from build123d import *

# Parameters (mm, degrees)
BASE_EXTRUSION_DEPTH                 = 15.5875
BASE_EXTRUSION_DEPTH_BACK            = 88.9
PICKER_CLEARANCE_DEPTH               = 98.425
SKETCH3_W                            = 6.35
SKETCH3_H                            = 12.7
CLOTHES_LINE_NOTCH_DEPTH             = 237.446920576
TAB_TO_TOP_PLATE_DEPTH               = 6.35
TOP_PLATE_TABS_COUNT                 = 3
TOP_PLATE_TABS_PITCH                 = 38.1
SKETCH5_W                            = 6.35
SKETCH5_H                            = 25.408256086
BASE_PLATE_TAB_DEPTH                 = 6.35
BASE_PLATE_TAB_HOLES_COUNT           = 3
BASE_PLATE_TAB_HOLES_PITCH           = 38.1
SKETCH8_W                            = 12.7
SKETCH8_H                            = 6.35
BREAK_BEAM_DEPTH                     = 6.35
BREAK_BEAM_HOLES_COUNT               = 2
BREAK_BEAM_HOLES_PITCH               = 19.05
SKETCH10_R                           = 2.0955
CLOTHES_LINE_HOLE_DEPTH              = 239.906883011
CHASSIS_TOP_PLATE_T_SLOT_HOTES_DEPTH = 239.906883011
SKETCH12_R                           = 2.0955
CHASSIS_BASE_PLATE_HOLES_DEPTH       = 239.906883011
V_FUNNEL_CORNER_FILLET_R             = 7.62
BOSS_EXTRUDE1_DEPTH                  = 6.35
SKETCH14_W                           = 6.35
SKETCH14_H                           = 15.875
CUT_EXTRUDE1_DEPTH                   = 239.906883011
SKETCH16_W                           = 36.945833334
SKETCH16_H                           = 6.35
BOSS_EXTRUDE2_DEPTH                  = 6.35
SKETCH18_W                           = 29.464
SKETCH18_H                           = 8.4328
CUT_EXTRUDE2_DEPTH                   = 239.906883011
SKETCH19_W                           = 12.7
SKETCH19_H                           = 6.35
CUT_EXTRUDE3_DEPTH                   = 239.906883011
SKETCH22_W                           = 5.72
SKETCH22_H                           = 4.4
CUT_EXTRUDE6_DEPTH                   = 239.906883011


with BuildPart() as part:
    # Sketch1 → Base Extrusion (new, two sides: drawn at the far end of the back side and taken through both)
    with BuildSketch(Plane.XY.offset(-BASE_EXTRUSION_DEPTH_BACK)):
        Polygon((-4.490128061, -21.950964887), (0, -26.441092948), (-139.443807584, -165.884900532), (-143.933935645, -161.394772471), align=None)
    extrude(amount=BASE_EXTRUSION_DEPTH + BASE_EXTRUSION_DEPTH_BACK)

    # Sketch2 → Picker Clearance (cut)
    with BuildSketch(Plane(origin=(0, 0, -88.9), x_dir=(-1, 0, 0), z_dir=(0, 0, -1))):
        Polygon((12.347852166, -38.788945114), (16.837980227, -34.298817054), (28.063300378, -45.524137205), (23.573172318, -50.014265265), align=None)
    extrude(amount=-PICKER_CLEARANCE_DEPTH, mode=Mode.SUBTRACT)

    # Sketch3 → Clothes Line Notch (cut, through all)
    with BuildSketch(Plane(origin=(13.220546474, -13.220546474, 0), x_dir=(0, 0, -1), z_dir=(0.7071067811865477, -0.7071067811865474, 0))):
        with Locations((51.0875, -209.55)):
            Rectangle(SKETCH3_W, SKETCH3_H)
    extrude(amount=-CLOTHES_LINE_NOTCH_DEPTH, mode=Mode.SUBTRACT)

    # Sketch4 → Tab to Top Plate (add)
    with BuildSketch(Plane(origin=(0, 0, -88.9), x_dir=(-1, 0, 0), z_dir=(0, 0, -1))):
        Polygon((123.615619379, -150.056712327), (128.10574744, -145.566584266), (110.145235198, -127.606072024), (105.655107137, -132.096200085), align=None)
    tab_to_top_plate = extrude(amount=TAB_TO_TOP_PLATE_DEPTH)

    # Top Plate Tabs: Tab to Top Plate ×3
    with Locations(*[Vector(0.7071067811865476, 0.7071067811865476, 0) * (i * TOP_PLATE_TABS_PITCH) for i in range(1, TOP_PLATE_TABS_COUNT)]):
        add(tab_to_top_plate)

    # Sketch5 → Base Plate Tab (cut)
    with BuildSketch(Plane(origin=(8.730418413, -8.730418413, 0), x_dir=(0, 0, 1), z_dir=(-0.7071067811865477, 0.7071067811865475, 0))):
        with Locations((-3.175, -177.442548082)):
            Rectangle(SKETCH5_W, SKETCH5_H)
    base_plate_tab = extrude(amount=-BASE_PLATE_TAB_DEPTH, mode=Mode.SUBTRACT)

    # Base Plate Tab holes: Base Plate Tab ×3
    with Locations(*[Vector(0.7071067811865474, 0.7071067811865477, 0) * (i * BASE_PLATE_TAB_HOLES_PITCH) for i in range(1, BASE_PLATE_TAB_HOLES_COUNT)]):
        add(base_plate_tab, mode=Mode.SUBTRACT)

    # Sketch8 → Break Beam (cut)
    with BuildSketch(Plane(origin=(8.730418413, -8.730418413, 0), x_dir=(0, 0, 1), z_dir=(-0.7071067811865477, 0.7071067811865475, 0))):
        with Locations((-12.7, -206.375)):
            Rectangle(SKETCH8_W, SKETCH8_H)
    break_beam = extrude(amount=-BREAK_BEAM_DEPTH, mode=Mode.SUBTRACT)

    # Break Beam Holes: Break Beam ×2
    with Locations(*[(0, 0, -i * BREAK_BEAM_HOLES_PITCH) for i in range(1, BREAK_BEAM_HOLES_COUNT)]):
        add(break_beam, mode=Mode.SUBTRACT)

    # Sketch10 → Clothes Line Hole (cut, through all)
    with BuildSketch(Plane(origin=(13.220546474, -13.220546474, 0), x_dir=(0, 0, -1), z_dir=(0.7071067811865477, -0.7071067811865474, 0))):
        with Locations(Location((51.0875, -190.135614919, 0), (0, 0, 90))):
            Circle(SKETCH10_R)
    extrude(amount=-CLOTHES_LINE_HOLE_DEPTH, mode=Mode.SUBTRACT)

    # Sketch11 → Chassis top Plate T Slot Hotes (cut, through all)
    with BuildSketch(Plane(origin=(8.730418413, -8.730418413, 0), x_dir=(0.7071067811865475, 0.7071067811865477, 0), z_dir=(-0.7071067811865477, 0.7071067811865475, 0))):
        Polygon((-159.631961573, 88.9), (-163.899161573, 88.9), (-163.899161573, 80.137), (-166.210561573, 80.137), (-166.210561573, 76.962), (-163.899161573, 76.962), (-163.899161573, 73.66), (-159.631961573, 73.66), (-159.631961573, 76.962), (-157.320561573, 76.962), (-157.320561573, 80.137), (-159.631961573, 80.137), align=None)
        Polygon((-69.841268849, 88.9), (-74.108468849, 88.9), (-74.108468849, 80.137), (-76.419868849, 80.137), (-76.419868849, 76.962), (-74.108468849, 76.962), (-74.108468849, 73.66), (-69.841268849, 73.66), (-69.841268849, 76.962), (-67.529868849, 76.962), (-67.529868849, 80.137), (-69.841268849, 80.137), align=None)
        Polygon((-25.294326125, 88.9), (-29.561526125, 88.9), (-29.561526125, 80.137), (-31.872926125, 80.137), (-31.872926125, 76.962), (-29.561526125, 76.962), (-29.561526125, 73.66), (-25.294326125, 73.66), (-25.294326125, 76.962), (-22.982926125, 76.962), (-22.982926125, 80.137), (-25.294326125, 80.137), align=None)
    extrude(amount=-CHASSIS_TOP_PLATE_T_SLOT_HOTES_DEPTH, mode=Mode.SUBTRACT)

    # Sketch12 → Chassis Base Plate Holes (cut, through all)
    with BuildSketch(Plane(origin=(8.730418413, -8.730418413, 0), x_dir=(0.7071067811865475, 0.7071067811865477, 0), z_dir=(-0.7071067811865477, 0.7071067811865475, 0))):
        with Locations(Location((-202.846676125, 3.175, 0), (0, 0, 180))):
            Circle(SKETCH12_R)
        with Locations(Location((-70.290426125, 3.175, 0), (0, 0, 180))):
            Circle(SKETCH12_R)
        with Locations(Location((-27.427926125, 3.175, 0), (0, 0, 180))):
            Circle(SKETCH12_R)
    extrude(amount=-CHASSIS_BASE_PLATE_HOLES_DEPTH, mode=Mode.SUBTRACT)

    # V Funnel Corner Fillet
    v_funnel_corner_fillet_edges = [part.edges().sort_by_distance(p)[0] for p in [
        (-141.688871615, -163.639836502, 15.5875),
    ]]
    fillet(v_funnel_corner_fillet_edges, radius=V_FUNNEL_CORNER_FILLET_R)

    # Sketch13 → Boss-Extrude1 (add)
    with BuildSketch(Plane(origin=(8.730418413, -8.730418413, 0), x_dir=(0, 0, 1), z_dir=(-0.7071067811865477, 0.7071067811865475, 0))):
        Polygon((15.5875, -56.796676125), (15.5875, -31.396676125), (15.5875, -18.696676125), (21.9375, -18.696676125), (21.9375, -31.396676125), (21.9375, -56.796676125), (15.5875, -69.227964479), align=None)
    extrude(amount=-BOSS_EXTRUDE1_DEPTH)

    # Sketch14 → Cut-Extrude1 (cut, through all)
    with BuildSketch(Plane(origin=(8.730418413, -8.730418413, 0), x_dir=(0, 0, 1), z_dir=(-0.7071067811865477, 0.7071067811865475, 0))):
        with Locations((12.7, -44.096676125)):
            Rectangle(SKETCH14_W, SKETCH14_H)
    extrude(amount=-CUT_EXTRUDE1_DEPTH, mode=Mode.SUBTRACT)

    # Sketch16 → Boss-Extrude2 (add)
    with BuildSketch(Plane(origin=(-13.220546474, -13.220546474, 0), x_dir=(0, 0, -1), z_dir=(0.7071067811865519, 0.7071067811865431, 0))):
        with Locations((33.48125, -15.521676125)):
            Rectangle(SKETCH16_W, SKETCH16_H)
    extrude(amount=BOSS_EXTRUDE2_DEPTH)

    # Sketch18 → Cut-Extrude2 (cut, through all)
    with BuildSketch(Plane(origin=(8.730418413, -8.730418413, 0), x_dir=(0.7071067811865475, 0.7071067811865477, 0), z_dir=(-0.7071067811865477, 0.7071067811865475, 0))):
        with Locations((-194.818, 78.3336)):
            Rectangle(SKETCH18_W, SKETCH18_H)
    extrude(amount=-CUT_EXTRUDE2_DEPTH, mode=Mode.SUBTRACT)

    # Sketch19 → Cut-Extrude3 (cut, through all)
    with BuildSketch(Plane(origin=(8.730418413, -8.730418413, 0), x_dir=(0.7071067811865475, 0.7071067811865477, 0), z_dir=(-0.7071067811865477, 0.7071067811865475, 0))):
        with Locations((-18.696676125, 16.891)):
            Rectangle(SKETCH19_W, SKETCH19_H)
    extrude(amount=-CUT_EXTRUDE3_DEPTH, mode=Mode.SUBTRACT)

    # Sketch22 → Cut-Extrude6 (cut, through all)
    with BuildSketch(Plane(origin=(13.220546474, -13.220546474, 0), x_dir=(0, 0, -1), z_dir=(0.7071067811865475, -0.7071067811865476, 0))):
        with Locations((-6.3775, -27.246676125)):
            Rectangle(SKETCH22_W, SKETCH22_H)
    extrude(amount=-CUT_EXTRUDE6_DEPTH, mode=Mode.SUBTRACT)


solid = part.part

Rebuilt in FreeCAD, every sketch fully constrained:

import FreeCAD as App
import Part
import Sketcher

V = App.Vector
Q = App.Units.Quantity


def edges_at(feature, points):
    """Names of the edges that pass closest to the given points."""
    edges = feature.Shape.Edges
    near = lambda p: min(range(len(edges)), key=lambda i: edges[i].distToShape(Part.Vertex(*p))[0])
    return sorted({f"Edge{near(p) + 1}" for p in points})

doc = App.newDocument("Part")
body = doc.addObject("PartDesign::Body", "Body")

sketch1 = doc.addObject("Sketcher::SketchObject", "Sketch")
body.addObject(sketch1)
sketch1.AttachmentSupport = (doc.XY_Plane, [""])
sketch1.MapMode = "FlatFace"
sketch1.addGeometry(Part.LineSegment(V(0, -26, 0), V(-4, -22, 0)), False)
sketch1.addGeometry(Part.LineSegment(V(-4, -22, 0), V(-144, -161, 0)), False)
sketch1.addGeometry(Part.LineSegment(V(-144, -161, 0), V(-139, -166, 0)), False)
sketch1.addGeometry(Part.LineSegment(V(-139, -166, 0), V(0, -26, 0)), False)
sketch1.addConstraint(Sketcher.Constraint("Coincident", 0, 2, 1, 1))
sketch1.addConstraint(Sketcher.Constraint("Coincident", 1, 2, 2, 1))
sketch1.addConstraint(Sketcher.Constraint("Coincident", 2, 2, 3, 1))
sketch1.addConstraint(Sketcher.Constraint("Coincident", 3, 2, 0, 1))
sketch1.addConstraint(Sketcher.Constraint("PointOnObject", 3, 2, -2))
sketch1.addConstraint(Sketcher.Constraint("Perpendicular", 0, 1))
sketch1.addConstraint(Sketcher.Constraint("Perpendicular", 1, 2))
sketch1.addConstraint(Sketcher.Constraint("Perpendicular", 2, 3))
sketch1.addConstraint(Sketcher.Constraint("Angle", 0, Q("135 deg")))
sketch1.addConstraint(Sketcher.Constraint("Distance", 0, Q("0.25 in")))
sketch1.addConstraint(Sketcher.Constraint("DistanceY", 2, 2, -1, 1, Q("165.884901 mm")))
sketch1.addConstraint(Sketcher.Constraint("DistanceX", 2, 2, 0, 2, Q("134.95368 mm")))
pad1 = doc.addObject("PartDesign::Pad", "Pad")
body.addObject(pad1)
pad1.Profile = sketch1
pad1.Type = "TwoLengths"
pad1.Length = 15.5875
pad1.Length2 = Q("3.5 in")

sketch2 = doc.addObject("Sketcher::SketchObject", "Sketch001")
body.addObject(sketch2)
sketch2.AttachmentSupport = (doc.XY_Plane, [""])
sketch2.MapMode = "FlatFace"
sketch2.AttachmentOffset = App.Placement(V(0, 0, -3.5 * 25.4), App.Rotation())
sketch2.addGeometry(Part.LineSegment(V(-17, -34, 0), V(-12, -39, 0)), False)
sketch2.addGeometry(Part.LineSegment(V(-12, -39, 0), V(-24, -50, 0)), False)
sketch2.addGeometry(Part.LineSegment(V(-24, -50, 0), V(-28, -46, 0)), False)
sketch2.addGeometry(Part.LineSegment(V(-28, -46, 0), V(-17, -34, 0)), False)
sketch2.addConstraint(Sketcher.Constraint("Coincident", 0, 2, 1, 1))
sketch2.addConstraint(Sketcher.Constraint("Coincident", 1, 2, 2, 1))
sketch2.addConstraint(Sketcher.Constraint("Coincident", 2, 2, 3, 1))
sketch2.addConstraint(Sketcher.Constraint("Coincident", 3, 2, 0, 1))
sketch2.addConstraint(Sketcher.Constraint("Perpendicular", 0, 1))
sketch2.addConstraint(Sketcher.Constraint("Perpendicular", 1, 2))
sketch2.addConstraint(Sketcher.Constraint("Perpendicular", 2, 3))
sketch2.addConstraint(Sketcher.Constraint("Angle", 0, Q("-45 deg")))
sketch2.addConstraint(Sketcher.Constraint("Distance", 0, Q("0.25 in")))
sketch2.addConstraint(Sketcher.Constraint("Distance", 1, Q("0.625 in")))
sketch2.addConstraint(Sketcher.Constraint("DistanceX", 2, 2, -1, 1, Q("28.0633 mm")))
sketch2.addConstraint(Sketcher.Constraint("DistanceY", 0, 2, -1, 1, Q("38.788945 mm")))
pocket1 = doc.addObject("PartDesign::Pocket", "Pocket")
body.addObject(pocket1)
pocket1.Profile = sketch2
pocket1.Length = Q("3.875 in")
pocket1.Reversed = True

sketch3 = doc.addObject("Sketcher::SketchObject", "Sketch002")
body.addObject(sketch3)
sketch3.Placement = App.Placement(V(13.220546, -13.220546, 0), App.Rotation(V(0, 0, -1), V(0.707106781, 0.707106781, 0), V(0.707106781, -0.707106781, 0), "ZXY"))
sketch3.addGeometry(Part.LineSegment(V(48, -203, 0), V(48, -216, 0)), False)
sketch3.addGeometry(Part.LineSegment(V(48, -216, 0), V(54, -216, 0)), False)
sketch3.addGeometry(Part.LineSegment(V(54, -216, 0), V(54, -203, 0)), False)
sketch3.addGeometry(Part.LineSegment(V(54, -203, 0), V(48, -203, 0)), False)
sketch3.addConstraint(Sketcher.Constraint("Coincident", 0, 2, 1, 1))
sketch3.addConstraint(Sketcher.Constraint("Coincident", 1, 2, 2, 1))
sketch3.addConstraint(Sketcher.Constraint("Coincident", 2, 2, 3, 1))
sketch3.addConstraint(Sketcher.Constraint("Coincident", 3, 2, 0, 1))
sketch3.addConstraint(Sketcher.Constraint("Vertical", 0))
sketch3.addConstraint(Sketcher.Constraint("Horizontal", 1))
sketch3.addConstraint(Sketcher.Constraint("Vertical", 2))
sketch3.addConstraint(Sketcher.Constraint("Horizontal", 3))
sketch3.addConstraint(Sketcher.Constraint("DistanceY", 0, 2, 0, 1, Q("0.5 in")))
sketch3.addConstraint(Sketcher.Constraint("DistanceY", 2, 2, -1, 1, Q("8 in")))
sketch3.addConstraint(Sketcher.Constraint("DistanceX", 1, 1, 1, 2, Q("0.25 in")))
sketch3.addConstraint(Sketcher.Constraint("DistanceX", -1, 1, 0, 2, Q("47.9125 mm")))
pocket2 = doc.addObject("PartDesign::Pocket", "Pocket001")
body.addObject(pocket2)
pocket2.Profile = sketch3
pocket2.Type = "ThroughAll"

sketch4 = doc.addObject("Sketcher::SketchObject", "Sketch003")
body.addObject(sketch4)
sketch4.AttachmentSupport = (doc.XY_Plane, [""])
sketch4.MapMode = "FlatFace"
sketch4.AttachmentOffset = App.Placement(V(0, 0, -3.5 * 25.4), App.Rotation())
sketch4.addGeometry(Part.LineSegment(V(-124, -150, 0), V(-128, -146, 0)), False)
sketch4.addGeometry(Part.LineSegment(V(-128, -146, 0), V(-110, -128, 0)), False)
sketch4.addGeometry(Part.LineSegment(V(-110, -128, 0), V(-106, -132, 0)), False)
sketch4.addGeometry(Part.LineSegment(V(-106, -132, 0), V(-124, -150, 0)), False)
sketch4.addConstraint(Sketcher.Constraint("Coincident", 0, 2, 1, 1))
sketch4.addConstraint(Sketcher.Constraint("Coincident", 1, 2, 2, 1))
sketch4.addConstraint(Sketcher.Constraint("Coincident", 2, 2, 3, 1))
sketch4.addConstraint(Sketcher.Constraint("Coincident", 3, 2, 0, 1))
sketch4.addConstraint(Sketcher.Constraint("Perpendicular", 0, 1))
sketch4.addConstraint(Sketcher.Constraint("Perpendicular", 1, 2))
sketch4.addConstraint(Sketcher.Constraint("Perpendicular", 2, 3))
sketch4.addConstraint(Sketcher.Constraint("Distance", 1, Q("1 in")))
sketch4.addConstraint(Sketcher.Constraint("Angle", 0, Q("135 deg")))
sketch4.addConstraint(Sketcher.Constraint("Distance", 0, Q("0.25 in")))
sketch4.addConstraint(Sketcher.Constraint("DistanceY", 2, 2, -1, 1, Q("132.0962 mm")))
sketch4.addConstraint(Sketcher.Constraint("DistanceX", 3, 2, -1, 1, Q("123.615619 mm")))
pad2 = doc.addObject("PartDesign::Pad", "Pad001")
body.addObject(pad2)
pad2.Profile = sketch4
pad2.Length = Q("0.25 in")
pad2.Reversed = True
doc.recompute()

datumline = doc.addObject("PartDesign::Line", "DatumLine")
body.addObject(datumline)
datumline.Placement = App.Placement(V(0, 0, 0), App.Rotation(V(0, 0, 1), V(0.707106781, 0.707106781, 0)))
linearpattern = doc.addObject("PartDesign::LinearPattern", "LinearPattern")
body.addObject(linearpattern)
linearpattern.Originals = [pad2]
linearpattern.Direction = (datumline, [""])
linearpattern.Mode = "offset"
linearpattern.Offset = Q("1.5 in")
linearpattern.Occurrences = 3
body.Tip = linearpattern

sketch5 = doc.addObject("Sketcher::SketchObject", "Sketch004")
body.addObject(sketch5)
sketch5.Placement = App.Placement(V(8.730418, -8.730418, 0), App.Rotation(V(0, 0, 1), V(0.707106781, 0.707106781, 0), V(-0.707106781, 0.707106781, 0), "ZXY"))
sketch5.addGeometry(Part.LineSegment(V(-6, -165, 0), V(-6, -190, 0)), False)
sketch5.addGeometry(Part.LineSegment(V(-6, -190, 0), V(0, -190, 0)), False)
sketch5.addGeometry(Part.LineSegment(V(0, -190, 0), V(0, -165, 0)), False)
sketch5.addGeometry(Part.LineSegment(V(0, -165, 0), V(-6, -165, 0)), False)
sketch5.addConstraint(Sketcher.Constraint("Coincident", 0, 2, 1, 1))
sketch5.addConstraint(Sketcher.Constraint("Coincident", 1, 2, 2, 1))
sketch5.addConstraint(Sketcher.Constraint("Coincident", 2, 2, 3, 1))
sketch5.addConstraint(Sketcher.Constraint("Coincident", 3, 2, 0, 1))
sketch5.addConstraint(Sketcher.Constraint("Vertical", 0))
sketch5.addConstraint(Sketcher.Constraint("Horizontal", 1))
sketch5.addConstraint(Sketcher.Constraint("Vertical", 2))
sketch5.addConstraint(Sketcher.Constraint("Horizontal", 3))
sketch5.addConstraint(Sketcher.Constraint("PointOnObject", 1, 2, -2))
sketch5.addConstraint(Sketcher.Constraint("DistanceX", 1, 1, 1, 2, Q("0.25 in")))
sketch5.addConstraint(Sketcher.Constraint("DistanceY", 0, 2, 0, 1, Q("25.408256 mm")))
sketch5.addConstraint(Sketcher.Constraint("DistanceY", 2, 2, -1, 1, Q("164.73842 mm")))
pocket3 = doc.addObject("PartDesign::Pocket", "Pocket002")
body.addObject(pocket3)
pocket3.Profile = sketch5
pocket3.Length = Q("0.25 in")
doc.recompute()

datumline2 = doc.addObject("PartDesign::Line", "DatumLine001")
body.addObject(datumline2)
datumline2.Placement = App.Placement(V(0, 0, 0), App.Rotation(V(0, 0, 1), V(0.707106781, 0.707106781, 0)))
linearpattern2 = doc.addObject("PartDesign::LinearPattern", "LinearPattern001")
body.addObject(linearpattern2)
linearpattern2.Originals = [pocket3]
linearpattern2.Direction = (datumline2, [""])
linearpattern2.Mode = "offset"
linearpattern2.Offset = Q("1.5 in")
linearpattern2.Occurrences = 3
body.Tip = linearpattern2

sketch6 = doc.addObject("Sketcher::SketchObject", "Sketch005")
body.addObject(sketch6)
sketch6.Placement = App.Placement(V(8.730418, -8.730418, 0), App.Rotation(V(0, 0, 1), V(0.707106781, 0.707106781, 0), V(-0.707106781, 0.707106781, 0), "ZXY"))
sketch6.addGeometry(Part.LineSegment(V(-19, -203, 0), V(-19, -210, 0)), False)
sketch6.addGeometry(Part.LineSegment(V(-19, -210, 0), V(-6, -210, 0)), False)
sketch6.addGeometry(Part.LineSegment(V(-6, -210, 0), V(-6, -203, 0)), False)
sketch6.addGeometry(Part.LineSegment(V(-6, -203, 0), V(-19, -203, 0)), False)
sketch6.addConstraint(Sketcher.Constraint("Coincident", 0, 2, 1, 1))
sketch6.addConstraint(Sketcher.Constraint("Coincident", 1, 2, 2, 1))
sketch6.addConstraint(Sketcher.Constraint("Coincident", 2, 2, 3, 1))
sketch6.addConstraint(Sketcher.Constraint("Coincident", 3, 2, 0, 1))
sketch6.addConstraint(Sketcher.Constraint("Vertical", 0))
sketch6.addConstraint(Sketcher.Constraint("Horizontal", 1))
sketch6.addConstraint(Sketcher.Constraint("Vertical", 2))
sketch6.addConstraint(Sketcher.Constraint("Horizontal", 3))
sketch6.addConstraint(Sketcher.Constraint("DistanceX", 1, 1, 1, 2, Q("0.5 in")))
sketch6.addConstraint(Sketcher.Constraint("DistanceY", 2, 2, -1, 1, Q("8 in")))
sketch6.addConstraint(Sketcher.Constraint("DistanceY", 0, 2, 0, 1, Q("0.25 in")))
sketch6.addConstraint(Sketcher.Constraint("DistanceX", 0, 2, -1, 1, Q("0.75 in")))
pocket4 = doc.addObject("PartDesign::Pocket", "Pocket003")
body.addObject(pocket4)
pocket4.Profile = sketch6
pocket4.Length = Q("0.25 in")
doc.recompute()

linearpattern3 = doc.addObject("PartDesign::LinearPattern", "LinearPattern002")
body.addObject(linearpattern3)
linearpattern3.Originals = [pocket4]
linearpattern3.Direction = (doc.Z_Axis, [""])
linearpattern3.Mode = "offset"
linearpattern3.Offset = Q("0.75 in")
linearpattern3.Occurrences = 2
linearpattern3.Reversed = True
body.Tip = linearpattern3

sketch7 = doc.addObject("Sketcher::SketchObject", "Sketch006")
body.addObject(sketch7)
sketch7.Placement = App.Placement(V(13.220546, -13.220546, 0), App.Rotation(V(0, 0, -1), V(0.707106781, 0.707106781, 0), V(0.707106781, -0.707106781, 0), "ZXY"))
sketch7.addGeometry(Part.Circle(V(51.1, -190.1, 0), V(0, 0, 1), 2.1), False)
sketch7.addConstraint(Sketcher.Constraint("Diameter", 0, Q("0.165 in")))
sketch7.addConstraint(Sketcher.Constraint("DistanceX", -1, 1, 0, 3, Q("51.0875 mm")))
sketch7.addConstraint(Sketcher.Constraint("DistanceY", 0, 3, -1, 1, Q("190.135615 mm")))
pocket5 = doc.addObject("PartDesign::Pocket", "Pocket004")
body.addObject(pocket5)
pocket5.Profile = sketch7
pocket5.Type = "ThroughAll"

sketch8 = doc.addObject("Sketcher::SketchObject", "Sketch007")
body.addObject(sketch8)
sketch8.Placement = App.Placement(V(8.730418, -8.730418, 0), App.Rotation(V(0.707106781, 0.707106781, 0), V(0, 0, -0.999999999), V(-0.707106781, 0.707106781, 0), "ZXY"))
sketch8.addGeometry(Part.LineSegment(V(-159.6, 88.9, 0), V(-163.9, 88.9, 0)), False)
sketch8.addGeometry(Part.LineSegment(V(-163.9, 88.9, 0), V(-163.9, 80.1, 0)), False)
sketch8.addGeometry(Part.LineSegment(V(-163.9, 80.1, 0), V(-166.2, 80.1, 0)), False)
sketch8.addGeometry(Part.LineSegment(V(-166.2, 80.1, 0), V(-166.2, 77, 0)), False)
sketch8.addGeometry(Part.LineSegment(V(-166.2, 77, 0), V(-163.9, 77, 0)), False)
sketch8.addGeometry(Part.LineSegment(V(-163.9, 77, 0), V(-163.9, 73.7, 0)), False)
sketch8.addGeometry(Part.LineSegment(V(-163.9, 73.7, 0), V(-159.6, 73.7, 0)), False)
sketch8.addGeometry(Part.LineSegment(V(-159.6, 73.7, 0), V(-159.6, 77, 0)), False)
sketch8.addGeometry(Part.LineSegment(V(-159.6, 77, 0), V(-157.3, 77, 0)), False)
sketch8.addGeometry(Part.LineSegment(V(-157.3, 77, 0), V(-157.3, 80.1, 0)), False)
sketch8.addGeometry(Part.LineSegment(V(-157.3, 80.1, 0), V(-159.6, 80.1, 0)), False)
sketch8.addGeometry(Part.LineSegment(V(-159.6, 80.1, 0), V(-159.6, 88.9, 0)), False)
sketch8.addGeometry(Part.LineSegment(V(-69.8, 88.9, 0), V(-74.1, 88.9, 0)), False)
sketch8.addGeometry(Part.LineSegment(V(-74.1, 88.9, 0), V(-74.1, 80.1, 0)), False)
sketch8.addGeometry(Part.LineSegment(V(-74.1, 80.1, 0), V(-76.4, 80.1, 0)), False)
sketch8.addGeometry(Part.LineSegment(V(-76.4, 80.1, 0), V(-76.4, 77, 0)), False)
sketch8.addGeometry(Part.LineSegment(V(-76.4, 77, 0), V(-74.1, 77, 0)), False)
sketch8.addGeometry(Part.LineSegment(V(-74.1, 77, 0), V(-74.1, 73.7, 0)), False)
sketch8.addGeometry(Part.LineSegment(V(-74.1, 73.7, 0), V(-69.8, 73.7, 0)), False)
sketch8.addGeometry(Part.LineSegment(V(-69.8, 73.7, 0), V(-69.8, 77, 0)), False)
sketch8.addGeometry(Part.LineSegment(V(-69.8, 77, 0), V(-67.5, 77, 0)), False)
sketch8.addGeometry(Part.LineSegment(V(-67.5, 77, 0), V(-67.5, 80.1, 0)), False)
sketch8.addGeometry(Part.LineSegment(V(-67.5, 80.1, 0), V(-69.8, 80.1, 0)), False)
sketch8.addGeometry(Part.LineSegment(V(-69.8, 80.1, 0), V(-69.8, 88.9, 0)), False)
sketch8.addGeometry(Part.LineSegment(V(-25.3, 88.9, 0), V(-29.6, 88.9, 0)), False)
sketch8.addGeometry(Part.LineSegment(V(-29.6, 88.9, 0), V(-29.6, 80.1, 0)), False)
sketch8.addGeometry(Part.LineSegment(V(-29.6, 80.1, 0), V(-31.9, 80.1, 0)), False)
sketch8.addGeometry(Part.LineSegment(V(-31.9, 80.1, 0), V(-31.9, 77, 0)), False)
sketch8.addGeometry(Part.LineSegment(V(-31.9, 77, 0), V(-29.6, 77, 0)), False)
sketch8.addGeometry(Part.LineSegment(V(-29.6, 77, 0), V(-29.6, 73.7, 0)), False)
sketch8.addGeometry(Part.LineSegment(V(-29.6, 73.7, 0), V(-25.3, 73.7, 0)), False)
sketch8.addGeometry(Part.LineSegment(V(-25.3, 73.7, 0), V(-25.3, 77, 0)), False)
sketch8.addGeometry(Part.LineSegment(V(-25.3, 77, 0), V(-23, 77, 0)), False)
sketch8.addGeometry(Part.LineSegment(V(-23, 77, 0), V(-23, 80.1, 0)), False)
sketch8.addGeometry(Part.LineSegment(V(-23, 80.1, 0), V(-25.3, 80.1, 0)), False)
sketch8.addGeometry(Part.LineSegment(V(-25.3, 80.1, 0), V(-25.3, 88.9, 0)), False)
sketch8.addConstraint(Sketcher.Constraint("Coincident", 0, 2, 1, 1))
sketch8.addConstraint(Sketcher.Constraint("Coincident", 1, 2, 2, 1))
sketch8.addConstraint(Sketcher.Constraint("Coincident", 2, 2, 3, 1))
sketch8.addConstraint(Sketcher.Constraint("Coincident", 3, 2, 4, 1))
sketch8.addConstraint(Sketcher.Constraint("Coincident", 4, 2, 5, 1))
sketch8.addConstraint(Sketcher.Constraint("Coincident", 5, 2, 6, 1))
sketch8.addConstraint(Sketcher.Constraint("Coincident", 6, 2, 7, 1))
sketch8.addConstraint(Sketcher.Constraint("Coincident", 7, 2, 8, 1))
sketch8.addConstraint(Sketcher.Constraint("Coincident", 8, 2, 9, 1))
sketch8.addConstraint(Sketcher.Constraint("Coincident", 9, 2, 10, 1))
sketch8.addConstraint(Sketcher.Constraint("Coincident", 10, 2, 11, 1))
sketch8.addConstraint(Sketcher.Constraint("Coincident", 11, 2, 0, 1))
sketch8.addConstraint(Sketcher.Constraint("Coincident", 12, 2, 13, 1))
sketch8.addConstraint(Sketcher.Constraint("Coincident", 13, 2, 14, 1))
sketch8.addConstraint(Sketcher.Constraint("Coincident", 14, 2, 15, 1))
sketch8.addConstraint(Sketcher.Constraint("Coincident", 15, 2, 16, 1))
sketch8.addConstraint(Sketcher.Constraint("Coincident", 16, 2, 17, 1))
sketch8.addConstraint(Sketcher.Constraint("Coincident", 17, 2, 18, 1))
sketch8.addConstraint(Sketcher.Constraint("Coincident", 18, 2, 19, 1))
sketch8.addConstraint(Sketcher.Constraint("Coincident", 19, 2, 20, 1))
sketch8.addConstraint(Sketcher.Constraint("Coincident", 20, 2, 21, 1))
sketch8.addConstraint(Sketcher.Constraint("Coincident", 21, 2, 22, 1))
sketch8.addConstraint(Sketcher.Constraint("Coincident", 22, 2, 23, 1))
sketch8.addConstraint(Sketcher.Constraint("Coincident", 23, 2, 12, 1))
sketch8.addConstraint(Sketcher.Constraint("Coincident", 24, 2, 25, 1))
sketch8.addConstraint(Sketcher.Constraint("Coincident", 25, 2, 26, 1))
sketch8.addConstraint(Sketcher.Constraint("Coincident", 26, 2, 27, 1))
sketch8.addConstraint(Sketcher.Constraint("Coincident", 27, 2, 28, 1))
sketch8.addConstraint(Sketcher.Constraint("Coincident", 28, 2, 29, 1))
sketch8.addConstraint(Sketcher.Constraint("Coincident", 29, 2, 30, 1))
sketch8.addConstraint(Sketcher.Constraint("Coincident", 30, 2, 31, 1))
sketch8.addConstraint(Sketcher.Constraint("Coincident", 31, 2, 32, 1))
sketch8.addConstraint(Sketcher.Constraint("Coincident", 32, 2, 33, 1))
sketch8.addConstraint(Sketcher.Constraint("Coincident", 33, 2, 34, 1))
sketch8.addConstraint(Sketcher.Constraint("Coincident", 34, 2, 35, 1))
sketch8.addConstraint(Sketcher.Constraint("Coincident", 35, 2, 24, 1))
sketch8.addConstraint(Sketcher.Constraint("Horizontal", 0))
sketch8.addConstraint(Sketcher.Constraint("Vertical", 1))
sketch8.addConstraint(Sketcher.Constraint("Horizontal", 2))
sketch8.addConstraint(Sketcher.Constraint("Vertical", 3))
sketch8.addConstraint(Sketcher.Constraint("Horizontal", 4))
sketch8.addConstraint(Sketcher.Constraint("Vertical", 5))
sketch8.addConstraint(Sketcher.Constraint("Horizontal", 6))
sketch8.addConstraint(Sketcher.Constraint("Vertical", 7))
sketch8.addConstraint(Sketcher.Constraint("Horizontal", 8))
sketch8.addConstraint(Sketcher.Constraint("Vertical", 9))
sketch8.addConstraint(Sketcher.Constraint("Horizontal", 10))
sketch8.addConstraint(Sketcher.Constraint("Vertical", 11))
sketch8.addConstraint(Sketcher.Constraint("Horizontal", 12))
sketch8.addConstraint(Sketcher.Constraint("Vertical", 13))
sketch8.addConstraint(Sketcher.Constraint("Horizontal", 14))
sketch8.addConstraint(Sketcher.Constraint("Vertical", 15))
sketch8.addConstraint(Sketcher.Constraint("Horizontal", 16))
sketch8.addConstraint(Sketcher.Constraint("Vertical", 17))
sketch8.addConstraint(Sketcher.Constraint("Horizontal", 18))
sketch8.addConstraint(Sketcher.Constraint("Vertical", 19))
sketch8.addConstraint(Sketcher.Constraint("Horizontal", 20))
sketch8.addConstraint(Sketcher.Constraint("Vertical", 21))
sketch8.addConstraint(Sketcher.Constraint("Horizontal", 22))
sketch8.addConstraint(Sketcher.Constraint("Vertical", 23))
sketch8.addConstraint(Sketcher.Constraint("Horizontal", 24))
sketch8.addConstraint(Sketcher.Constraint("Vertical", 25))
sketch8.addConstraint(Sketcher.Constraint("Horizontal", 26))
sketch8.addConstraint(Sketcher.Constraint("Vertical", 27))
sketch8.addConstraint(Sketcher.Constraint("Horizontal", 28))
sketch8.addConstraint(Sketcher.Constraint("Vertical", 29))
sketch8.addConstraint(Sketcher.Constraint("Horizontal", 30))
sketch8.addConstraint(Sketcher.Constraint("Vertical", 31))
sketch8.addConstraint(Sketcher.Constraint("Horizontal", 32))
sketch8.addConstraint(Sketcher.Constraint("Vertical", 33))
sketch8.addConstraint(Sketcher.Constraint("Horizontal", 34))
sketch8.addConstraint(Sketcher.Constraint("Vertical", 35))
sketch8.addConstraint(Sketcher.Constraint("Horizontal", 4, 2, 7, 2))
sketch8.addConstraint(Sketcher.Constraint("Horizontal", 2, 2, 9, 2))
sketch8.addConstraint(Sketcher.Constraint("Horizontal", 11, 2, 12, 2))
sketch8.addConstraint(Sketcher.Constraint("Horizontal", 10, 2, 13, 2))
sketch8.addConstraint(Sketcher.Constraint("Horizontal", 8, 2, 15, 2))
sketch8.addConstraint(Sketcher.Constraint("Horizontal", 6, 2, 17, 2))
sketch8.addConstraint(Sketcher.Constraint("Horizontal", 16, 2, 19, 2))
sketch8.addConstraint(Sketcher.Constraint("Horizontal", 14, 2, 21, 2))
sketch8.addConstraint(Sketcher.Constraint("Horizontal", 23, 2, 24, 2))
sketch8.addConstraint(Sketcher.Constraint("Horizontal", 22, 2, 25, 2))
sketch8.addConstraint(Sketcher.Constraint("Horizontal", 20, 2, 27, 2))
sketch8.addConstraint(Sketcher.Constraint("Horizontal", 18, 2, 29, 2))
sketch8.addConstraint(Sketcher.Constraint("Horizontal", 28, 2, 31, 2))
sketch8.addConstraint(Sketcher.Constraint("Horizontal", 26, 2, 33, 2))
sketch8.addConstraint(Sketcher.Constraint("Vertical", 1, 2, 4, 2))
sketch8.addConstraint(Sketcher.Constraint("Vertical", 7, 2, 10, 2))
sketch8.addConstraint(Sketcher.Constraint("Vertical", 13, 2, 16, 2))
sketch8.addConstraint(Sketcher.Constraint("Vertical", 19, 2, 22, 2))
sketch8.addConstraint(Sketcher.Constraint("Vertical", 25, 2, 28, 2))
sketch8.addConstraint(Sketcher.Constraint("Vertical", 31, 2, 34, 2))
sketch8.addConstraint(Sketcher.Constraint("Equal", 4, 8))
sketch8.addConstraint(Sketcher.Constraint("Equal", 6, 12))
sketch8.addConstraint(Sketcher.Constraint("Equal", 10, 14))
sketch8.addConstraint(Sketcher.Constraint("Equal", 16, 20))
sketch8.addConstraint(Sketcher.Constraint("Equal", 18, 24))
sketch8.addConstraint(Sketcher.Constraint("Equal", 22, 26))
sketch8.addConstraint(Sketcher.Constraint("Equal", 28, 32))
sketch8.addConstraint(Sketcher.Constraint("DistanceY", 5, 2, 5, 1, Q("0.13 in")))
sketch8.addConstraint(Sketcher.Constraint("DistanceY", -1, 1, 0, 2, Q("3.5 in")))
sketch8.addConstraint(Sketcher.Constraint("DistanceY", -1, 1, 5, 2, Q("2.9 in")))
sketch8.addConstraint(Sketcher.Constraint("DistanceX", 0, 2, 0, 1, Q("0.168 in")))
sketch8.addConstraint(Sketcher.Constraint("DistanceX", 2, 2, 2, 1, Q("0.091 in")))
sketch8.addConstraint(Sketcher.Constraint("DistanceY", 1, 2, 1, 1, Q("0.345 in")))
sketch8.addConstraint(Sketcher.Constraint("DistanceX", 0, 2, -1, 1, Q("163.899161 mm")))
sketch8.addConstraint(Sketcher.Constraint("DistanceX", 12, 2, -1, 1, Q("74.108469 mm")))
sketch8.addConstraint(Sketcher.Constraint("DistanceX", 24, 2, -1, 1, Q("29.561526 mm")))
pocket6 = doc.addObject("PartDesign::Pocket", "Pocket005")
body.addObject(pocket6)
pocket6.Profile = sketch8
pocket6.Type = "ThroughAll"

sketch9 = doc.addObject("Sketcher::SketchObject", "Sketch008")
body.addObject(sketch9)
sketch9.Placement = App.Placement(V(8.730418, -8.730418, 0), App.Rotation(V(0.707106781, 0.707106781, 0), V(0, 0, -0.999999999), V(-0.707106781, 0.707106781, 0), "ZXY"))
sketch9.addGeometry(Part.Circle(V(-202.8, 3.2, 0), V(0, 0, 1), 2.1), False)
sketch9.addGeometry(Part.Circle(V(-70.3, 3.2, 0), V(0, 0, 1), 2.1), False)
sketch9.addGeometry(Part.Circle(V(-27.4, 3.2, 0), V(0, 0, 1), 2.1), False)
sketch9.addConstraint(Sketcher.Constraint("Equal", 0, 1))
sketch9.addConstraint(Sketcher.Constraint("Equal", 1, 2))
sketch9.addConstraint(Sketcher.Constraint("Horizontal", 0, 3, 1, 3))
sketch9.addConstraint(Sketcher.Constraint("Horizontal", 1, 3, 2, 3))
sketch9.addConstraint(Sketcher.Constraint("Diameter", 0, Q("0.165 in")))
sketch9.addConstraint(Sketcher.Constraint("DistanceY", -1, 1, 0, 3, Q("0.125 in")))
sketch9.addConstraint(Sketcher.Constraint("DistanceX", 0, 3, 1, 3, Q("5.21875 in")))
sketch9.addConstraint(Sketcher.Constraint("DistanceX", 1, 3, 2, 3, Q("1.6875 in")))
sketch9.addConstraint(Sketcher.Constraint("DistanceX", 0, 3, -1, 1, Q("202.846676 mm")))
pocket7 = doc.addObject("PartDesign::Pocket", "Pocket006")
body.addObject(pocket7)
pocket7.Profile = sketch9
pocket7.Type = "ThroughAll"
doc.recompute()

fillet = doc.addObject("PartDesign::Fillet", "Fillet")
body.addObject(fillet)
fillet.Base = (pocket7, edges_at(pocket7, [(-141.689, -163.64, 15.588)]))
fillet.Radius = Q("0.3 in")

sketch10 = doc.addObject("Sketcher::SketchObject", "Sketch009")
body.addObject(sketch10)
sketch10.Placement = App.Placement(V(8.730418, -8.730418, 0), App.Rotation(V(0, 0, 1), V(0.707106781, 0.707106781, 0), V(-0.707106781, 0.707106781, 0), "ZXY"))
sketch10.addGeometry(Part.LineSegment(V(16, -19, 0), V(16, -69, 0)), False)
sketch10.addGeometry(Part.LineSegment(V(16, -69, 0), V(22, -57, 0)), False)
sketch10.addGeometry(Part.LineSegment(V(22, -57, 0), V(22, -19, 0)), False)
sketch10.addGeometry(Part.LineSegment(V(22, -19, 0), V(16, -19, 0)), False)
sketch10.addConstraint(Sketcher.Constraint("Coincident", 0, 2, 1, 1))
sketch10.addConstraint(Sketcher.Constraint("Coincident", 1, 2, 2, 1))
sketch10.addConstraint(Sketcher.Constraint("Coincident", 2, 2, 3, 1))
sketch10.addConstraint(Sketcher.Constraint("Coincident", 3, 2, 0, 1))
sketch10.addConstraint(Sketcher.Constraint("Vertical", 0))
sketch10.addConstraint(Sketcher.Constraint("Vertical", 2))
sketch10.addConstraint(Sketcher.Constraint("Horizontal", 3))
sketch10.addConstraint(Sketcher.Constraint("DistanceY", 2, 1, 2, 2, Q("1.5 in")))
sketch10.addConstraint(Sketcher.Constraint("DistanceX", 3, 2, 3, 1, Q("0.25 in")))
sketch10.addConstraint(Sketcher.Constraint("DistanceY", 0, 2, 0, 1, Q("50.531288 mm")))
sketch10.addConstraint(Sketcher.Constraint("DistanceX", -1, 1, 0, 2, Q("15.5875 mm")))
sketch10.addConstraint(Sketcher.Constraint("DistanceY", 0, 2, -1, 1, Q("69.227964 mm")))
pad3 = doc.addObject("PartDesign::Pad", "Pad002")
body.addObject(pad3)
pad3.Profile = sketch10
pad3.Length = Q("0.25 in")
pad3.Reversed = True

sketch11 = doc.addObject("Sketcher::SketchObject", "Sketch010")
body.addObject(sketch11)
sketch11.Placement = App.Placement(V(8.730418, -8.730418, 0), App.Rotation(V(0, 0, 1), V(0.707106781, 0.707106781, 0), V(-0.707106781, 0.707106781, 0), "ZXY"))
sketch11.addGeometry(Part.LineSegment(V(10, -36, 0), V(10, -52, 0)), False)
sketch11.addGeometry(Part.LineSegment(V(10, -52, 0), V(16, -52, 0)), False)
sketch11.addGeometry(Part.LineSegment(V(16, -52, 0), V(16, -36, 0)), False)
sketch11.addGeometry(Part.LineSegment(V(16, -36, 0), V(10, -36, 0)), False)
sketch11.addConstraint(Sketcher.Constraint("Coincident", 0, 2, 1, 1))
sketch11.addConstraint(Sketcher.Constraint("Coincident", 1, 2, 2, 1))
sketch11.addConstraint(Sketcher.Constraint("Coincident", 2, 2, 3, 1))
sketch11.addConstraint(Sketcher.Constraint("Coincident", 3, 2, 0, 1))
sketch11.addConstraint(Sketcher.Constraint("Vertical", 0))
sketch11.addConstraint(Sketcher.Constraint("Horizontal", 1))
sketch11.addConstraint(Sketcher.Constraint("Vertical", 2))
sketch11.addConstraint(Sketcher.Constraint("Horizontal", 3))
sketch11.addConstraint(Sketcher.Constraint("DistanceX", 1, 1, 1, 2, Q("0.25 in")))
sketch11.addConstraint(Sketcher.Constraint("DistanceY", 0, 2, 0, 1, Q("0.625 in")))
sketch11.addConstraint(Sketcher.Constraint("DistanceX", -1, 1, 0, 2, Q("0.375 in")))
sketch11.addConstraint(Sketcher.Constraint("DistanceY", 0, 2, -1, 1, Q("52.034176 mm")))
pocket8 = doc.addObject("PartDesign::Pocket", "Pocket007")
body.addObject(pocket8)
pocket8.Profile = sketch11
pocket8.Type = "ThroughAll"

sketch12 = doc.addObject("Sketcher::SketchObject", "Sketch011")
body.addObject(sketch12)
sketch12.Placement = App.Placement(V(-13.220546, -13.220546, 0), App.Rotation(V(0, 0, -1), V(-0.707106781, 0.707106781, 0), V(0.707106781, 0.707106781, 0), "ZXY"))
sketch12.addGeometry(Part.LineSegment(V(15, -12, 0), V(15, -19, 0)), False)
sketch12.addGeometry(Part.LineSegment(V(15, -19, 0), V(52, -19, 0)), False)
sketch12.addGeometry(Part.LineSegment(V(52, -19, 0), V(52, -12, 0)), False)
sketch12.addGeometry(Part.LineSegment(V(52, -12, 0), V(15, -12, 0)), False)
sketch12.addConstraint(Sketcher.Constraint("Coincident", 0, 2, 1, 1))
sketch12.addConstraint(Sketcher.Constraint("Coincident", 1, 2, 2, 1))
sketch12.addConstraint(Sketcher.Constraint("Coincident", 2, 2, 3, 1))
sketch12.addConstraint(Sketcher.Constraint("Coincident", 3, 2, 0, 1))
sketch12.addConstraint(Sketcher.Constraint("Vertical", 0))
sketch12.addConstraint(Sketcher.Constraint("Horizontal", 1))
sketch12.addConstraint(Sketcher.Constraint("Vertical", 2))
sketch12.addConstraint(Sketcher.Constraint("Horizontal", 3))
sketch12.addConstraint(Sketcher.Constraint("DistanceY", 0, 2, 0, 1, Q("0.25 in")))
sketch12.addConstraint(Sketcher.Constraint("DistanceX", 1, 1, 1, 2, Q("36.945833 mm")))
sketch12.addConstraint(Sketcher.Constraint("DistanceX", -1, 1, 0, 2, Q("15.008333 mm")))
sketch12.addConstraint(Sketcher.Constraint("DistanceY", 0, 2, -1, 1, Q("18.696676 mm")))
pad4 = doc.addObject("PartDesign::Pad", "Pad003")
body.addObject(pad4)
pad4.Profile = sketch12
pad4.Length = Q("0.25 in")

sketch13 = doc.addObject("Sketcher::SketchObject", "Sketch012")
body.addObject(sketch13)
sketch13.Placement = App.Placement(V(8.730418, -8.730418, 0), App.Rotation(V(0.707106781, 0.707106781, 0), V(0, 0, -0.999999999), V(-0.707106781, 0.707106781, 0), "ZXY"))
sketch13.addGeometry(Part.LineSegment(V(-210, 83, 0), V(-210, 74, 0)), False)
sketch13.addGeometry(Part.LineSegment(V(-210, 74, 0), V(-180, 74, 0)), False)
sketch13.addGeometry(Part.LineSegment(V(-180, 74, 0), V(-180, 83, 0)), False)
sketch13.addGeometry(Part.LineSegment(V(-180, 83, 0), V(-210, 83, 0)), False)
sketch13.addConstraint(Sketcher.Constraint("Coincident", 0, 2, 1, 1))
sketch13.addConstraint(Sketcher.Constraint("Coincident", 1, 2, 2, 1))
sketch13.addConstraint(Sketcher.Constraint("Coincident", 2, 2, 3, 1))
sketch13.addConstraint(Sketcher.Constraint("Coincident", 3, 2, 0, 1))
sketch13.addConstraint(Sketcher.Constraint("Vertical", 0))
sketch13.addConstraint(Sketcher.Constraint("Horizontal", 1))
sketch13.addConstraint(Sketcher.Constraint("Vertical", 2))
sketch13.addConstraint(Sketcher.Constraint("Horizontal", 3))
sketch13.addConstraint(Sketcher.Constraint("DistanceX", 1, 1, 1, 2, Q("1.16 in")))
sketch13.addConstraint(Sketcher.Constraint("DistanceY", 0, 2, 0, 1, Q("0.332 in")))
sketch13.addConstraint(Sketcher.Constraint("DistanceX", 0, 2, -1, 1, Q("8.25 in")))
sketch13.addConstraint(Sketcher.Constraint("DistanceY", -1, 1, 2, 2, Q("3.25 in")))
pocket9 = doc.addObject("PartDesign::Pocket", "Pocket008")
body.addObject(pocket9)
pocket9.Profile = sketch13
pocket9.Type = "ThroughAll"

sketch14 = doc.addObject("Sketcher::SketchObject", "Sketch013")
body.addObject(sketch14)
sketch14.Placement = App.Placement(V(8.730418, -8.730418, 0), App.Rotation(V(0.707106781, 0.707106781, 0), V(0, 0, -0.999999999), V(-0.707106781, 0.707106781, 0), "ZXY"))
sketch14.addGeometry(Part.LineSegment(V(-25, 20, 0), V(-25, 14, 0)), False)
sketch14.addGeometry(Part.LineSegment(V(-25, 14, 0), V(-12, 14, 0)), False)
sketch14.addGeometry(Part.LineSegment(V(-12, 14, 0), V(-12, 20, 0)), False)
sketch14.addGeometry(Part.LineSegment(V(-12, 20, 0), V(-25, 20, 0)), False)
sketch14.addConstraint(Sketcher.Constraint("Coincident", 0, 2, 1, 1))
sketch14.addConstraint(Sketcher.Constraint("Coincident", 1, 2, 2, 1))
sketch14.addConstraint(Sketcher.Constraint("Coincident", 2, 2, 3, 1))
sketch14.addConstraint(Sketcher.Constraint("Coincident", 3, 2, 0, 1))
sketch14.addConstraint(Sketcher.Constraint("Vertical", 0))
sketch14.addConstraint(Sketcher.Constraint("Horizontal", 1))
sketch14.addConstraint(Sketcher.Constraint("Vertical", 2))
sketch14.addConstraint(Sketcher.Constraint("Horizontal", 3))
sketch14.addConstraint(Sketcher.Constraint("DistanceX", 1, 1, 1, 2, Q("0.5 in")))
sketch14.addConstraint(Sketcher.Constraint("DistanceY", 0, 2, 0, 1, Q("0.25 in")))
sketch14.addConstraint(Sketcher.Constraint("DistanceY", -1, 1, 0, 2, Q("0.54 in")))
sketch14.addConstraint(Sketcher.Constraint("DistanceX", 0, 2, -1, 1, Q("25.046676 mm")))
pocket10 = doc.addObject("PartDesign::Pocket", "Pocket009")
body.addObject(pocket10)
pocket10.Profile = sketch14
pocket10.Type = "ThroughAll"

sketch15 = doc.addObject("Sketcher::SketchObject", "Sketch014")
body.addObject(sketch15)
sketch15.Placement = App.Placement(V(13.220546, -13.220546, 0), App.Rotation(V(0, 0, -1), V(0.707106781, 0.707106781, 0), V(0.707106781, -0.707106781, 0), "ZXY"))
sketch15.addGeometry(Part.LineSegment(V(-9.2, -25, 0), V(-9.2, -29.4, 0)), False)
sketch15.addGeometry(Part.LineSegment(V(-9.2, -29.4, 0), V(-3.5, -29.4, 0)), False)
sketch15.addGeometry(Part.LineSegment(V(-3.5, -29.4, 0), V(-3.5, -25, 0)), False)
sketch15.addGeometry(Part.LineSegment(V(-3.5, -25, 0), V(-9.2, -25, 0)), False)
sketch15.addConstraint(Sketcher.Constraint("Coincident", 0, 2, 1, 1))
sketch15.addConstraint(Sketcher.Constraint("Coincident", 1, 2, 2, 1))
sketch15.addConstraint(Sketcher.Constraint("Coincident", 2, 2, 3, 1))
sketch15.addConstraint(Sketcher.Constraint("Coincident", 3, 2, 0, 1))
sketch15.addConstraint(Sketcher.Constraint("Vertical", 0))
sketch15.addConstraint(Sketcher.Constraint("Horizontal", 1))
sketch15.addConstraint(Sketcher.Constraint("Vertical", 2))
sketch15.addConstraint(Sketcher.Constraint("Horizontal", 3))
sketch15.addConstraint(Sketcher.Constraint("DistanceX", 1, 1, 1, 2, Q("5.72 mm")))
sketch15.addConstraint(Sketcher.Constraint("DistanceY", 0, 2, 0, 1, Q("4.4 mm")))
sketch15.addConstraint(Sketcher.Constraint("DistanceX", 0, 2, -1, 1, Q("9.2375 mm")))
sketch15.addConstraint(Sketcher.Constraint("DistanceY", 0, 2, -1, 1, Q("29.446676 mm")))
pocket11 = doc.addObject("PartDesign::Pocket", "Pocket010")
body.addObject(pocket11)
pocket11.Profile = sketch15
pocket11.Type = "ThroughAll"

doc.recompute()
